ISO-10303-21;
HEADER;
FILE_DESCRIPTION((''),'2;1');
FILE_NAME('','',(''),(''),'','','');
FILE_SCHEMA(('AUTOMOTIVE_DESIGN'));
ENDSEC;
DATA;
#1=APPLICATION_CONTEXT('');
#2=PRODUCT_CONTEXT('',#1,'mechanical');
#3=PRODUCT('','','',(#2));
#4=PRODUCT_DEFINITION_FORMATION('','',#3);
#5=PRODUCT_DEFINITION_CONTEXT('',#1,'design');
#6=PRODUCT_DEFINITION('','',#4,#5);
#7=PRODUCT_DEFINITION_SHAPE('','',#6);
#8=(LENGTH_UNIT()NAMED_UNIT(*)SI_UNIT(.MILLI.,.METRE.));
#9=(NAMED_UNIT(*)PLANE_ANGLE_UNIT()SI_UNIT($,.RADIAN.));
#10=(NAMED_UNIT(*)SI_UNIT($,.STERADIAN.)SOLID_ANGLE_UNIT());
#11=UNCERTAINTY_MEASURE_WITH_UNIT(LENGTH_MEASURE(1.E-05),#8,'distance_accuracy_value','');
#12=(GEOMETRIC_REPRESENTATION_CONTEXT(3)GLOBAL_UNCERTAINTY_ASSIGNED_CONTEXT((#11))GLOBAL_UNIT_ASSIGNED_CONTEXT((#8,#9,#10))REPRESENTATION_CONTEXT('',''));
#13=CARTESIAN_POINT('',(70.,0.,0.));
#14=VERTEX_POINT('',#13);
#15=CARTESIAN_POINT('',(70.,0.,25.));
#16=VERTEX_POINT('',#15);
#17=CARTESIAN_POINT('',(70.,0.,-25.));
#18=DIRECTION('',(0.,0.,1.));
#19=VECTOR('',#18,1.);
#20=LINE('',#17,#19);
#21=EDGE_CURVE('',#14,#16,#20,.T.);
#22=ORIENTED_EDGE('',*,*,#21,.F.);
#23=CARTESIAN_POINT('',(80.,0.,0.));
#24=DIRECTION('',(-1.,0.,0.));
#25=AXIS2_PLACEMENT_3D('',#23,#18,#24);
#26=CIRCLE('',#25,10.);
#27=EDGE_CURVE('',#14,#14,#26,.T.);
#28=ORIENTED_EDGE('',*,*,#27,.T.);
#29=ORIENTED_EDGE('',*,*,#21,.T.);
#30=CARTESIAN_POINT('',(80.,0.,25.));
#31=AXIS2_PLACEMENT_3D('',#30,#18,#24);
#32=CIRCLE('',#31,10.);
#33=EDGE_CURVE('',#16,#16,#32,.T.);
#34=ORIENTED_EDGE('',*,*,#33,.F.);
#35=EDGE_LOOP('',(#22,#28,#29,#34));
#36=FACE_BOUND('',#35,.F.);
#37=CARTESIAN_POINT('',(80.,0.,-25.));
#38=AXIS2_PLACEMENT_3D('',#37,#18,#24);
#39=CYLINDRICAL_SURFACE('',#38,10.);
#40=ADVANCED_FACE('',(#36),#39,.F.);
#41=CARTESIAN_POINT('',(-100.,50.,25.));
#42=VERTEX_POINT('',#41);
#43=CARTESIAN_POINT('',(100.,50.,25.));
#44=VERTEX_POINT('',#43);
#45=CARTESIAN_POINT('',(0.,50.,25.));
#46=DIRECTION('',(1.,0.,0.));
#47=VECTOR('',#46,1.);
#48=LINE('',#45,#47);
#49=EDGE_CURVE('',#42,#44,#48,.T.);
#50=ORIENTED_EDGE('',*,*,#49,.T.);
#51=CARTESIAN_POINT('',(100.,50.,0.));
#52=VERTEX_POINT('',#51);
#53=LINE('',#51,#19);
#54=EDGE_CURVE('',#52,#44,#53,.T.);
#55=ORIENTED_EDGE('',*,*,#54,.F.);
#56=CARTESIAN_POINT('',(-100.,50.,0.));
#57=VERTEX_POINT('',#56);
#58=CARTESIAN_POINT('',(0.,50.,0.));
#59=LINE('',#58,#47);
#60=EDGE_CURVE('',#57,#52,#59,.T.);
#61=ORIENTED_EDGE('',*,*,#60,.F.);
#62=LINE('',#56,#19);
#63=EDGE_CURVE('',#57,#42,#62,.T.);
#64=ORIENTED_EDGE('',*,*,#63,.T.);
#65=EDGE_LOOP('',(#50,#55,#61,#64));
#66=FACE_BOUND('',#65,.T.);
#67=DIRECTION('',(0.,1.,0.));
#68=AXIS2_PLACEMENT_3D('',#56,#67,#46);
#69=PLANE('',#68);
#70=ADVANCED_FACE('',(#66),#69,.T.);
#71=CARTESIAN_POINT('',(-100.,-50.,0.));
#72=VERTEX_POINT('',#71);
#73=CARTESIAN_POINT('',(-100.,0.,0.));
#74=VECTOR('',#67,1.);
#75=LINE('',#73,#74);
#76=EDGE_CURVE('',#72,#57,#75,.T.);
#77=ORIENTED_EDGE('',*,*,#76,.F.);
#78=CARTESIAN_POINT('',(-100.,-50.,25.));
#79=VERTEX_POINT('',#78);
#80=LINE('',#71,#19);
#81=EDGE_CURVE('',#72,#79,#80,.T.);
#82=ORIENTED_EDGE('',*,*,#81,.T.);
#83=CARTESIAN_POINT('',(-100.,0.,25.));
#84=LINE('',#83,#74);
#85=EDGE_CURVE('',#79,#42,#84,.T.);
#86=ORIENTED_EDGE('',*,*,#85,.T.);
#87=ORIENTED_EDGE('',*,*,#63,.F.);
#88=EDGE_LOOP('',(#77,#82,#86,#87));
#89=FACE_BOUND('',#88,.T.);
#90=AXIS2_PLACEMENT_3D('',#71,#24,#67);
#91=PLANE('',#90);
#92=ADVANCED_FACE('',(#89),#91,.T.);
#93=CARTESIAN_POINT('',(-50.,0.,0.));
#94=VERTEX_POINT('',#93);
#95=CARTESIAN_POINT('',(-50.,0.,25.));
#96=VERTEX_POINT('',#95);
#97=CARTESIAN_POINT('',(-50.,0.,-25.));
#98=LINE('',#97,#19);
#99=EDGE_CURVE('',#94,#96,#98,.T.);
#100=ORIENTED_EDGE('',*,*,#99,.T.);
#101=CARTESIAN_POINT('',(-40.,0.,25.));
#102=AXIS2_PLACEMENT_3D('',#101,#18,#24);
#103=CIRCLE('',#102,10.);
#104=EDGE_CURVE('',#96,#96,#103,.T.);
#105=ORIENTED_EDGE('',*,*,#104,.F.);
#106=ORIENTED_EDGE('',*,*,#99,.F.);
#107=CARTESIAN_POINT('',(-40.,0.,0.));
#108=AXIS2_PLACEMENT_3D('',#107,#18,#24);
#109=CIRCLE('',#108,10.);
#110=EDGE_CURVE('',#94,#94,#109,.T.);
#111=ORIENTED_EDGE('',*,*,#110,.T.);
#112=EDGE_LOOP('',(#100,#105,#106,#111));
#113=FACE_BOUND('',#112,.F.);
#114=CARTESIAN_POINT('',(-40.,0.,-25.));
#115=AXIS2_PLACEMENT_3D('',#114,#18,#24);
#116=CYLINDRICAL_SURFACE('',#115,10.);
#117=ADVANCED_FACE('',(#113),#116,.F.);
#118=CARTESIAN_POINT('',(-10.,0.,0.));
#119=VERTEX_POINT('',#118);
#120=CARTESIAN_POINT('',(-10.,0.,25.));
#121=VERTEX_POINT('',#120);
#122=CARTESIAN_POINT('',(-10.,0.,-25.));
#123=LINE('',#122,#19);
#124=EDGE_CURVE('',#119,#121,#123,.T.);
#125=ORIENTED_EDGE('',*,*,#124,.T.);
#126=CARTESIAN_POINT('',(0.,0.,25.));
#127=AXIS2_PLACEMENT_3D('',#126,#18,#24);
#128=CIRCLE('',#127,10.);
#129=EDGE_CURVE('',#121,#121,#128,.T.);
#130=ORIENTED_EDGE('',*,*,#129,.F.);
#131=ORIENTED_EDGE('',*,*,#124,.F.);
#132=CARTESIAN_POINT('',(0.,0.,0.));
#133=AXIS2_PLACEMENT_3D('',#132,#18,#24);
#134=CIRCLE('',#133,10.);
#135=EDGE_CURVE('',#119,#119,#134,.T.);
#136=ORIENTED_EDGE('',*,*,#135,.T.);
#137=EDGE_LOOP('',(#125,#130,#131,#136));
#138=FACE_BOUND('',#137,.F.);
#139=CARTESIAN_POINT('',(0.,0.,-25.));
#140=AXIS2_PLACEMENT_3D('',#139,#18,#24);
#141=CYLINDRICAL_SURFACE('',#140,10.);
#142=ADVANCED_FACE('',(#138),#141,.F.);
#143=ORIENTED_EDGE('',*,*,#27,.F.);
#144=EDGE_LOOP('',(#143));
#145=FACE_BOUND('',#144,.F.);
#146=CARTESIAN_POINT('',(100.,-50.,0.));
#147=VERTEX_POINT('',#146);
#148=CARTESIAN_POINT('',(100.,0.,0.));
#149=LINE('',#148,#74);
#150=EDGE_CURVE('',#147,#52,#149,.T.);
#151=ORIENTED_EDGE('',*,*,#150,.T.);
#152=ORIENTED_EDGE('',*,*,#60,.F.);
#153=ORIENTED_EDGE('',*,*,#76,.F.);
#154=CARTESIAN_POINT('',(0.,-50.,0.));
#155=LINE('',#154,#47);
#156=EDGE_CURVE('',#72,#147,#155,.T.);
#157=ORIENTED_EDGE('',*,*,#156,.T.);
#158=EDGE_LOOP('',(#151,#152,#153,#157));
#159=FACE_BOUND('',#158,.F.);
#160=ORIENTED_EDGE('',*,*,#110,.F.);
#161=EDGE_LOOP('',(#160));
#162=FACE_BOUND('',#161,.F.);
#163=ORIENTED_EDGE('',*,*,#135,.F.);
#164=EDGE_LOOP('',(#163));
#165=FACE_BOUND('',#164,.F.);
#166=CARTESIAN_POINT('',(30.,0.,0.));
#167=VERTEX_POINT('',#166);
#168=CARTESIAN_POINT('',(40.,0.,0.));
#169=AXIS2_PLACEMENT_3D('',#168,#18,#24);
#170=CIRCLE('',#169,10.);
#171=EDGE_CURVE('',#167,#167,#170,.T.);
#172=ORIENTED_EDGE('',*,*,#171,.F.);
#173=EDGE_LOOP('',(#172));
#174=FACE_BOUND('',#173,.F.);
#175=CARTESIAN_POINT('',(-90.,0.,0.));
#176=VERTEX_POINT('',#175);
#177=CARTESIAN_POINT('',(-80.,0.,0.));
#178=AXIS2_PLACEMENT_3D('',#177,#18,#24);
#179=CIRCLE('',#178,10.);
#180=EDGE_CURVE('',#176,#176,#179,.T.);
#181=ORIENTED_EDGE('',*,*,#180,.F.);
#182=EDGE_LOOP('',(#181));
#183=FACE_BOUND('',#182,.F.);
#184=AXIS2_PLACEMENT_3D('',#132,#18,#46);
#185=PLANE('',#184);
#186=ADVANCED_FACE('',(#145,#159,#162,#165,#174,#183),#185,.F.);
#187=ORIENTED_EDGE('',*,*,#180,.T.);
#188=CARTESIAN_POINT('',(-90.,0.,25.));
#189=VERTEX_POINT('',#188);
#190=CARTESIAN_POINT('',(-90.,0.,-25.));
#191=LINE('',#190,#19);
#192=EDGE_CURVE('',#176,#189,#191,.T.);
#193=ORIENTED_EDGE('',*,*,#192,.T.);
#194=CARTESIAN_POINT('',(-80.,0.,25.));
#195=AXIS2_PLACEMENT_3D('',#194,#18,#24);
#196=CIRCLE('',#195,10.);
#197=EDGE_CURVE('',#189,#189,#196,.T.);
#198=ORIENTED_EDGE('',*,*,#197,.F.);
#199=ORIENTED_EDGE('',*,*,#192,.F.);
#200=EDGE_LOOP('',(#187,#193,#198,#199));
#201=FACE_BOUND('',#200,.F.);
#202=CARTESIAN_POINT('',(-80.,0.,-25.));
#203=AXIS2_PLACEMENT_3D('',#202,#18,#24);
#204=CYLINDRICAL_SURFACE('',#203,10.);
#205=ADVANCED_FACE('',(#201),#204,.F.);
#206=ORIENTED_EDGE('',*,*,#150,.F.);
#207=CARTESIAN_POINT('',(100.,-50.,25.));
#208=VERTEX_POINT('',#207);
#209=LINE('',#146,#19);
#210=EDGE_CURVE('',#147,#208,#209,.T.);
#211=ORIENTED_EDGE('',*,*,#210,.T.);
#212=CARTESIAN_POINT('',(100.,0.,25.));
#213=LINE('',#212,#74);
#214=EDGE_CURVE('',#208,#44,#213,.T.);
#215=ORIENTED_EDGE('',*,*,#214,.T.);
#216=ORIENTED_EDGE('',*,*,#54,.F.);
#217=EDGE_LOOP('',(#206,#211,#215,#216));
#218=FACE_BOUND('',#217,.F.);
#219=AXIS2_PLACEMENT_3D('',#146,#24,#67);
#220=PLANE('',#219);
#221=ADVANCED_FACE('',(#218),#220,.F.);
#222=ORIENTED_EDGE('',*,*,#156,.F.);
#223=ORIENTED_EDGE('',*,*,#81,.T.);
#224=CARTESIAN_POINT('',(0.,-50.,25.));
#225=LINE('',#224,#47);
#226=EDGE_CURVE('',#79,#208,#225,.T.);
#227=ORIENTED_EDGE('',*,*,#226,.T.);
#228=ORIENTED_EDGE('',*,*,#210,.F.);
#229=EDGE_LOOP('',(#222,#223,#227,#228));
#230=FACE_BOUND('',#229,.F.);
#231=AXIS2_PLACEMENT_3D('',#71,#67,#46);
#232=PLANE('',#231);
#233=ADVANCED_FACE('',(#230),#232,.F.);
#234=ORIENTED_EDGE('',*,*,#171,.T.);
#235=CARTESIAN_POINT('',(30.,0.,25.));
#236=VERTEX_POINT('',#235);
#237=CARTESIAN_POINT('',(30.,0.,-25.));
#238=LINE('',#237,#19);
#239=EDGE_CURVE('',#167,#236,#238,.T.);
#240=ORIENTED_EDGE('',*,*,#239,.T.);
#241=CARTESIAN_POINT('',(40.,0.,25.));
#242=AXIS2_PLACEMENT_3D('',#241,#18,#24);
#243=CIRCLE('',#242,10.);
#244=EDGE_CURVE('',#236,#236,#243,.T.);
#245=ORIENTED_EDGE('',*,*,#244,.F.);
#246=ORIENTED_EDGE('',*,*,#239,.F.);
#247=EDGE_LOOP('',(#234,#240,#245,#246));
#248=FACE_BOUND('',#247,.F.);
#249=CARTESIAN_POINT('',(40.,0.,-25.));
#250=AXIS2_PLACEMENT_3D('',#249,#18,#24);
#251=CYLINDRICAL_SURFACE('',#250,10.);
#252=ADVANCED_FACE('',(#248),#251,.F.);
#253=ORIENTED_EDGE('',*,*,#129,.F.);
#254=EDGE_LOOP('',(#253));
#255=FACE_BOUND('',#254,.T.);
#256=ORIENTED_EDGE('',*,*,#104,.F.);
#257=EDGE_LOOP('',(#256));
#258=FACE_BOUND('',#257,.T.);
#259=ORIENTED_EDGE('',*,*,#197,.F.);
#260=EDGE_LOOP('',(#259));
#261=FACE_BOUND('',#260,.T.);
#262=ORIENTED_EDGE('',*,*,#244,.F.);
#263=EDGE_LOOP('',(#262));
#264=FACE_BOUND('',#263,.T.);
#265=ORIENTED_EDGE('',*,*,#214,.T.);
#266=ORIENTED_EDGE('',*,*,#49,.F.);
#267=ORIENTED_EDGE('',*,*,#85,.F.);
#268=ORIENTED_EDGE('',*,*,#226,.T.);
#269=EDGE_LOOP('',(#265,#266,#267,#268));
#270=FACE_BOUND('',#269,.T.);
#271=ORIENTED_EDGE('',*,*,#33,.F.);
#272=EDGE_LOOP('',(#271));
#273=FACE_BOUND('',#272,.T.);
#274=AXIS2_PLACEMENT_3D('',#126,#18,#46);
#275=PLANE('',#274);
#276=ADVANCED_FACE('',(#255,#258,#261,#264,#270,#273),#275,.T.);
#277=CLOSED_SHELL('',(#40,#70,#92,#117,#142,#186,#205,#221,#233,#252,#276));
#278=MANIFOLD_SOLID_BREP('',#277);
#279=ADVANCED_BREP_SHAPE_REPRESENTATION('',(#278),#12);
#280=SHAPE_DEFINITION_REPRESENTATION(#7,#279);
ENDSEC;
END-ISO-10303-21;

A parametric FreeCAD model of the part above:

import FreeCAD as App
import Part
import Sketcher

V = App.Vector
Q = App.Units.Quantity

doc = App.newDocument("Part")
body = doc.addObject("PartDesign::Body", "Body")

sketch1 = body.newObject("Sketcher::SketchObject", "Sketch")
sketch1.AttachmentSupport = (doc.getObject("XY_Plane"), [""])
sketch1.MapMode = "FlatFace"
sketch1.addGeometry([
    Part.LineSegment(V(-100, 50, 0), V(-100, -50, 0)),
    Part.LineSegment(V(-100, -50, 0), V(100, -50, 0)),
    Part.LineSegment(V(100, -50, 0), V(100, 50, 0)),
    Part.LineSegment(V(100, 50, 0), V(-100, 50, 0)),
], False)
sketch1.addConstraint([
    Sketcher.Constraint("Coincident", 0, 2, 1, 1),
    Sketcher.Constraint("Coincident", 1, 2, 2, 1),
    Sketcher.Constraint("Coincident", 2, 2, 3, 1),
    Sketcher.Constraint("Coincident", 3, 2, 0, 1),
    Sketcher.Constraint("Vertical", 0),
    Sketcher.Constraint("Horizontal", 1),
    Sketcher.Constraint("Vertical", 2),
    Sketcher.Constraint("Horizontal", 3),
    Sketcher.Constraint("Symmetric", 0, 2, 2, 2, -1, 1),
    Sketcher.Constraint("DistanceX", 1, 1, 1, 2, Q("200 mm")),
    Sketcher.Constraint("DistanceY", 0, 2, 0, 1, Q("100 mm")),
])
pad1 = body.newObject("PartDesign::Pad", "Pad")
pad1.Profile = sketch1
pad1.Length = 25

sketch2 = body.newObject("Sketcher::SketchObject", "Sketch001")
sketch2.AttachmentSupport = (doc.getObject("XY_Plane"), [""])
sketch2.MapMode = "FlatFace"
sketch2.addGeometry([
    Part.Circle(V(-80, 0, 0), V(0, 0, 1), 10),
    Part.Circle(V(-40, 0, 0), V(0, 0, 1), 10),
    Part.Circle(V(0, 0, 0), V(0, 0, 1), 10),
    Part.Circle(V(40, 0, 0), V(0, 0, 1), 10),
    Part.Circle(V(80, 0, 0), V(0, 0, 1), 10),
], False)
sketch2.addConstraint([
    Sketcher.Constraint("Coincident", 2, 3, -1, 1),
    Sketcher.Constraint("Equal", 0, 1),
    Sketcher.Constraint("Equal", 1, 2),
    Sketcher.Constraint("Equal", 2, 3),
    Sketcher.Constraint("Equal", 3, 4),
    Sketcher.Constraint("Symmetric", 1, 3, 3, 3, -1, 1),
    Sketcher.Constraint("Symmetric", 0, 3, 4, 3, -1, 1),
    Sketcher.Constraint("PointOnObject", 0, 3, -1),
    Sketcher.Constraint("PointOnObject", 1, 3, -1),
    Sketcher.Constraint("Diameter", 0, Q("20 mm")),
    Sketcher.Constraint("DistanceX", 0, 3, -1, 1, Q("80 mm")),
    Sketcher.Constraint("DistanceX", 1, 3, -1, 1, Q("40 mm")),
])
doc.recompute()
hole = body.newObject("PartDesign::Hole", "Hole")
hole.Profile = sketch2
hole.ThreadType = "None"
hole.Diameter = 20
hole.DepthType = "Dimension"
hole.Depth = 25
hole.DrillPoint = "Flat"
hole.Reversed = True

doc.recompute()
